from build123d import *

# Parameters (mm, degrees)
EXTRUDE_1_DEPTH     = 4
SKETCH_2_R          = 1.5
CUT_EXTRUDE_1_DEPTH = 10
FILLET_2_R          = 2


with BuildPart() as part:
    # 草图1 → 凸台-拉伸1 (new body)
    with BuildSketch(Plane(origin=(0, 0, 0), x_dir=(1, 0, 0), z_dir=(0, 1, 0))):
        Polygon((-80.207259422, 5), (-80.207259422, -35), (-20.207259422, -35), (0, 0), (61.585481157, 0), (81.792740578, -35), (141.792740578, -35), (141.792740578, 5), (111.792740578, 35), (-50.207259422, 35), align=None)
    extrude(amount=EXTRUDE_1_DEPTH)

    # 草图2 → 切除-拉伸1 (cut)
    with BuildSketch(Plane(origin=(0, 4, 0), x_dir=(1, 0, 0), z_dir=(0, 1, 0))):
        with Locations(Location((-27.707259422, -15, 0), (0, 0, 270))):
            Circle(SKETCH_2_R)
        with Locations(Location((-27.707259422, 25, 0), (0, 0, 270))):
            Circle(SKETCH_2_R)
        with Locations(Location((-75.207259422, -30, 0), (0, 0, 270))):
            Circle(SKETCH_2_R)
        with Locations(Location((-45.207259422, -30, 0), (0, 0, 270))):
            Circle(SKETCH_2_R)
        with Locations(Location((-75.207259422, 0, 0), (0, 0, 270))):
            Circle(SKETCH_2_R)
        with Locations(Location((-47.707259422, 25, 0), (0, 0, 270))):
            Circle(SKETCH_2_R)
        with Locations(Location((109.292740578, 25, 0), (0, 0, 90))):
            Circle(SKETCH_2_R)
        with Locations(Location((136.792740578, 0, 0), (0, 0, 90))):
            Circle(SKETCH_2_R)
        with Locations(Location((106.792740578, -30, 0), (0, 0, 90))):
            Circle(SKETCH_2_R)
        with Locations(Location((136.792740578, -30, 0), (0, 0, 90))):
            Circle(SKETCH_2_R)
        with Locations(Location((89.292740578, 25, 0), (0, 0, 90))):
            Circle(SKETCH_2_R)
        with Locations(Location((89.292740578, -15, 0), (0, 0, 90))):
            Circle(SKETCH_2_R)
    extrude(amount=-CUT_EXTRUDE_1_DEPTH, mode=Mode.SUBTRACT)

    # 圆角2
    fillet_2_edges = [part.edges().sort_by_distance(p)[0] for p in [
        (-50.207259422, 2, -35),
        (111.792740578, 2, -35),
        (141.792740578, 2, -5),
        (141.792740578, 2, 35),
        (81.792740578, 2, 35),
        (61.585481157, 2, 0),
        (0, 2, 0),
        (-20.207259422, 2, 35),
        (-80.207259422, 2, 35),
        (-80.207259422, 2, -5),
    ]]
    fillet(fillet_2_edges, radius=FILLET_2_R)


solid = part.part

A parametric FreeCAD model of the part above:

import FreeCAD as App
import Part
import Sketcher
Q = App.Units.Quantity


def edges_at(feature, points):
    """Names of the edges that pass closest to the given points."""
    edges = feature.Shape.Edges
    near = lambda p: min(range(len(edges)), key=lambda i: edges[i].distToShape(Part.Vertex(*p))[0])
    return sorted({f"Edge{near(p) + 1}" for p in points})


def add_polygon(sketch, points):
    """Adds a closed chain of lines whose ends are joined by coincident constraints."""
    first, n = sketch.GeometryCount, len(points)
    for a, b in zip(points, points[1:] + points[:1]):
        sketch.addGeometry(Part.LineSegment(App.Vector(*a, 0), App.Vector(*b, 0)), False)
    for i in range(n):
        sketch.addConstraint(Sketcher.Constraint("Coincident", first + i, 2, first + (i + 1) % n, 1))

doc = App.newDocument("Part")
params = doc.addObject("Spreadsheet::Sheet", "Params")
for row, (alias, value) in enumerate([
    ("sketch1_width", "60 mm"),
    ("sketch1_width2", "162 mm"),
    ("sketch1_height", "40 mm"),
    ("pad1_length", "4 mm"),
    ("sketch2_diameter", "3 mm"),
    ("pocket1_length", "10 mm"),
    ("fillet_radius", "2 mm"),
], start=1):
    params.set(f"A{row}", alias)
    params.set(f"B{row}", "=" + value)
    params.setAlias(f"B{row}", alias)

body = doc.addObject("PartDesign::Body", "Body")

sketch1 = doc.addObject("Sketcher::SketchObject", "Sketch")
body.addObject(sketch1)
sketch1.AttachmentSupport = (doc.XZ_Plane, [""])
sketch1.MapMode = "FlatFace"
add_polygon(sketch1, [(-80, -5), (-80, 35), (-20, 35), (0, 0), (62, 0), (82, 35), (142, 35), (142, -5), (112, -35), (-50, -35)])
sketch1.addConstraint([
    Sketcher.Constraint("Vertical", 0),
    Sketcher.Constraint("Horizontal", 1),
    Sketcher.Constraint("Horizontal", 3),
    Sketcher.Constraint("Horizontal", 5),
    Sketcher.Constraint("Vertical", 6),
    Sketcher.Constraint("Horizontal", 8),
    Sketcher.Constraint("Coincident", 2, 2, -1, 1),
    Sketcher.Constraint("Perpendicular", 7, 9),
    Sketcher.Constraint("Horizontal", 1, 2, 4, 2),
    Sketcher.Constraint("Horizontal", 6, 2, 9, 2),
    Sketcher.Constraint("Equal", 1, 5),
    Sketcher.Constraint("Equal", 2, 4),
    Sketcher.Constraint("Equal", 7, 9),
    Sketcher.Constraint("DistanceX", 1, 1, 1, 2, 60.0),
    Sketcher.Constraint("DistanceX", 8, 2, 8, 1, 162.0),
    Sketcher.Constraint("DistanceY", 0, 1, 0, 2, 40.0),
    Sketcher.Constraint("Angle", 2, Q("-60 deg")),
    Sketcher.Constraint("DistanceY", -1, 1, 0, 2, 35.0),
    Sketcher.Constraint("DistanceY", 7, 2, -1, 1, 35.0),
])
sketch1.setExpression("Constraints[23]", "Params.sketch1_width")
sketch1.setExpression("Constraints[24]", "Params.sketch1_width2")
sketch1.setExpression("Constraints[25]", "Params.sketch1_height")
pad1 = doc.addObject("PartDesign::Pad", "Pad")
body.addObject(pad1)
pad1.Profile = sketch1
pad1.setExpression("Length", "Params.pad1_length")
pad1.Reversed = True

sketch2 = doc.addObject("Sketcher::SketchObject", "Sketch001")
body.addObject(sketch2)
sketch2.AttachmentSupport = (doc.XZ_Plane, [""])
sketch2.MapMode = "FlatFace"
sketch2.AttachmentOffset = App.Placement(App.Vector(0, 0, -4), App.Rotation())
sketch2.addGeometry([
    Part.Circle(App.Vector(-27.7, 15, 0), App.Vector(0, 0, 1), 1.5),
    Part.Circle(App.Vector(-27.7, -25, 0), App.Vector(0, 0, 1), 1.5),
    Part.Circle(App.Vector(-75.2, 30, 0), App.Vector(0, 0, 1), 1.5),
    Part.Circle(App.Vector(-45.2, 30, 0), App.Vector(0, 0, 1), 1.5),
    Part.Circle(App.Vector(-75.2, 0, 0), App.Vector(0, 0, 1), 1.5),
    Part.Circle(App.Vector(-47.7, -25, 0), App.Vector(0, 0, 1), 1.5),
    Part.Circle(App.Vector(109.3, -25, 0), App.Vector(0, 0, 1), 1.5),
    Part.Circle(App.Vector(136.8, 0, 0), App.Vector(0, 0, 1), 1.5),
    Part.Circle(App.Vector(106.8, 30, 0), App.Vector(0, 0, 1), 1.5),
    Part.Circle(App.Vector(136.8, 30, 0), App.Vector(0, 0, 1), 1.5),
    Part.Circle(App.Vector(89.3, -25, 0), App.Vector(0, 0, 1), 1.5),
    Part.Circle(App.Vector(89.3, 15, 0), App.Vector(0, 0, 1), 1.5),
], False)
sketch2.addConstraint([
    Sketcher.Constraint("Equal", 0, 1),
    Sketcher.Constraint("Equal", 1, 2),
    Sketcher.Constraint("Equal", 2, 3),
    Sketcher.Constraint("Equal", 3, 4),
    Sketcher.Constraint("Equal", 4, 5),
    Sketcher.Constraint("Equal", 5, 6),
    Sketcher.Constraint("Equal", 6, 7),
    Sketcher.Constraint("Equal", 7, 8),
    Sketcher.Constraint("Equal", 8, 9),
    Sketcher.Constraint("Equal", 9, 10),
    Sketcher.Constraint("Equal", 10, 11),
    Sketcher.Constraint("PointOnObject", 4, 3, -1),
    Sketcher.Constraint("PointOnObject", 7, 3, -1),
    Sketcher.Constraint("Horizontal", 2, 3, 3, 3),
    Sketcher.Constraint("Horizontal", 1, 3, 5, 3),
    Sketcher.Constraint("Horizontal", 5, 3, 6, 3),
    Sketcher.Constraint("Horizontal", 3, 3, 8, 3),
    Sketcher.Constraint("Horizontal", 8, 3, 9, 3),
    Sketcher.Constraint("Horizontal", 6, 3, 10, 3),
    Sketcher.Constraint("Horizontal", 0, 3, 11, 3),
    Sketcher.Constraint("Vertical", 0, 3, 1, 3),
    Sketcher.Constraint("Vertical", 2, 3, 4, 3),
    Sketcher.Constraint("Vertical", 7, 3, 9, 3),
    Sketcher.Constraint("Vertical", 10, 3, 11, 3),
    Sketcher.Constraint("Diameter", 0, 3.0),
    Sketcher.Constraint("DistanceY", -1, 1, 0, 3, 15.0),
    Sketcher.Constraint("DistanceY", 1, 3, -1, 1, 25.0),
    Sketcher.Constraint("DistanceY", -1, 1, 2, 3, 30.0),
    Sketcher.Constraint("DistanceX", 2, 3, 3, 3, 30.0),
    Sketcher.Constraint("DistanceX", 5, 3, 1, 3, 20.0),
    Sketcher.Constraint("DistanceX", 1, 3, 6, 3, 137.0),
    Sketcher.Constraint("DistanceX", 3, 3, 7, 3, 182.0),
    Sketcher.Constraint("DistanceX", 8, 3, 7, 3, 30.0),
    Sketcher.Constraint("DistanceX", 10, 3, 6, 3, 20.0),
    Sketcher.Constraint("DistanceX", 2, 3, 0, 3, 47.5),
    Sketcher.Constraint("DistanceX", 0, 3, -1, 1, 27.707259),
])
sketch2.setExpression("Constraints[24]", "Params.sketch2_diameter")
pocket1 = doc.addObject("PartDesign::Pocket", "Pocket")
body.addObject(pocket1)
pocket1.Profile = sketch2
pocket1.setExpression("Length", "Params.pocket1_length")
pocket1.Reversed = True
doc.recompute()

fillet = doc.addObject("PartDesign::Fillet", "Fillet")
body.addObject(fillet)
fillet.Base = (pocket1, edges_at(pocket1, [
    (-50.207, 2, -35),
    (111.793, 2, -35),
    (141.793, 2, -5),
    (141.793, 2, 35),
    (81.793, 2, 35),
    (61.585, 2, 0),
    (0, 2, 0),
    (-20.207, 2, 35),
    (-80.207, 2, 35),
    (-80.207, 2, -5),
]))
fillet.setExpression("Radius", "Params.fillet_radius")

doc.recompute()
